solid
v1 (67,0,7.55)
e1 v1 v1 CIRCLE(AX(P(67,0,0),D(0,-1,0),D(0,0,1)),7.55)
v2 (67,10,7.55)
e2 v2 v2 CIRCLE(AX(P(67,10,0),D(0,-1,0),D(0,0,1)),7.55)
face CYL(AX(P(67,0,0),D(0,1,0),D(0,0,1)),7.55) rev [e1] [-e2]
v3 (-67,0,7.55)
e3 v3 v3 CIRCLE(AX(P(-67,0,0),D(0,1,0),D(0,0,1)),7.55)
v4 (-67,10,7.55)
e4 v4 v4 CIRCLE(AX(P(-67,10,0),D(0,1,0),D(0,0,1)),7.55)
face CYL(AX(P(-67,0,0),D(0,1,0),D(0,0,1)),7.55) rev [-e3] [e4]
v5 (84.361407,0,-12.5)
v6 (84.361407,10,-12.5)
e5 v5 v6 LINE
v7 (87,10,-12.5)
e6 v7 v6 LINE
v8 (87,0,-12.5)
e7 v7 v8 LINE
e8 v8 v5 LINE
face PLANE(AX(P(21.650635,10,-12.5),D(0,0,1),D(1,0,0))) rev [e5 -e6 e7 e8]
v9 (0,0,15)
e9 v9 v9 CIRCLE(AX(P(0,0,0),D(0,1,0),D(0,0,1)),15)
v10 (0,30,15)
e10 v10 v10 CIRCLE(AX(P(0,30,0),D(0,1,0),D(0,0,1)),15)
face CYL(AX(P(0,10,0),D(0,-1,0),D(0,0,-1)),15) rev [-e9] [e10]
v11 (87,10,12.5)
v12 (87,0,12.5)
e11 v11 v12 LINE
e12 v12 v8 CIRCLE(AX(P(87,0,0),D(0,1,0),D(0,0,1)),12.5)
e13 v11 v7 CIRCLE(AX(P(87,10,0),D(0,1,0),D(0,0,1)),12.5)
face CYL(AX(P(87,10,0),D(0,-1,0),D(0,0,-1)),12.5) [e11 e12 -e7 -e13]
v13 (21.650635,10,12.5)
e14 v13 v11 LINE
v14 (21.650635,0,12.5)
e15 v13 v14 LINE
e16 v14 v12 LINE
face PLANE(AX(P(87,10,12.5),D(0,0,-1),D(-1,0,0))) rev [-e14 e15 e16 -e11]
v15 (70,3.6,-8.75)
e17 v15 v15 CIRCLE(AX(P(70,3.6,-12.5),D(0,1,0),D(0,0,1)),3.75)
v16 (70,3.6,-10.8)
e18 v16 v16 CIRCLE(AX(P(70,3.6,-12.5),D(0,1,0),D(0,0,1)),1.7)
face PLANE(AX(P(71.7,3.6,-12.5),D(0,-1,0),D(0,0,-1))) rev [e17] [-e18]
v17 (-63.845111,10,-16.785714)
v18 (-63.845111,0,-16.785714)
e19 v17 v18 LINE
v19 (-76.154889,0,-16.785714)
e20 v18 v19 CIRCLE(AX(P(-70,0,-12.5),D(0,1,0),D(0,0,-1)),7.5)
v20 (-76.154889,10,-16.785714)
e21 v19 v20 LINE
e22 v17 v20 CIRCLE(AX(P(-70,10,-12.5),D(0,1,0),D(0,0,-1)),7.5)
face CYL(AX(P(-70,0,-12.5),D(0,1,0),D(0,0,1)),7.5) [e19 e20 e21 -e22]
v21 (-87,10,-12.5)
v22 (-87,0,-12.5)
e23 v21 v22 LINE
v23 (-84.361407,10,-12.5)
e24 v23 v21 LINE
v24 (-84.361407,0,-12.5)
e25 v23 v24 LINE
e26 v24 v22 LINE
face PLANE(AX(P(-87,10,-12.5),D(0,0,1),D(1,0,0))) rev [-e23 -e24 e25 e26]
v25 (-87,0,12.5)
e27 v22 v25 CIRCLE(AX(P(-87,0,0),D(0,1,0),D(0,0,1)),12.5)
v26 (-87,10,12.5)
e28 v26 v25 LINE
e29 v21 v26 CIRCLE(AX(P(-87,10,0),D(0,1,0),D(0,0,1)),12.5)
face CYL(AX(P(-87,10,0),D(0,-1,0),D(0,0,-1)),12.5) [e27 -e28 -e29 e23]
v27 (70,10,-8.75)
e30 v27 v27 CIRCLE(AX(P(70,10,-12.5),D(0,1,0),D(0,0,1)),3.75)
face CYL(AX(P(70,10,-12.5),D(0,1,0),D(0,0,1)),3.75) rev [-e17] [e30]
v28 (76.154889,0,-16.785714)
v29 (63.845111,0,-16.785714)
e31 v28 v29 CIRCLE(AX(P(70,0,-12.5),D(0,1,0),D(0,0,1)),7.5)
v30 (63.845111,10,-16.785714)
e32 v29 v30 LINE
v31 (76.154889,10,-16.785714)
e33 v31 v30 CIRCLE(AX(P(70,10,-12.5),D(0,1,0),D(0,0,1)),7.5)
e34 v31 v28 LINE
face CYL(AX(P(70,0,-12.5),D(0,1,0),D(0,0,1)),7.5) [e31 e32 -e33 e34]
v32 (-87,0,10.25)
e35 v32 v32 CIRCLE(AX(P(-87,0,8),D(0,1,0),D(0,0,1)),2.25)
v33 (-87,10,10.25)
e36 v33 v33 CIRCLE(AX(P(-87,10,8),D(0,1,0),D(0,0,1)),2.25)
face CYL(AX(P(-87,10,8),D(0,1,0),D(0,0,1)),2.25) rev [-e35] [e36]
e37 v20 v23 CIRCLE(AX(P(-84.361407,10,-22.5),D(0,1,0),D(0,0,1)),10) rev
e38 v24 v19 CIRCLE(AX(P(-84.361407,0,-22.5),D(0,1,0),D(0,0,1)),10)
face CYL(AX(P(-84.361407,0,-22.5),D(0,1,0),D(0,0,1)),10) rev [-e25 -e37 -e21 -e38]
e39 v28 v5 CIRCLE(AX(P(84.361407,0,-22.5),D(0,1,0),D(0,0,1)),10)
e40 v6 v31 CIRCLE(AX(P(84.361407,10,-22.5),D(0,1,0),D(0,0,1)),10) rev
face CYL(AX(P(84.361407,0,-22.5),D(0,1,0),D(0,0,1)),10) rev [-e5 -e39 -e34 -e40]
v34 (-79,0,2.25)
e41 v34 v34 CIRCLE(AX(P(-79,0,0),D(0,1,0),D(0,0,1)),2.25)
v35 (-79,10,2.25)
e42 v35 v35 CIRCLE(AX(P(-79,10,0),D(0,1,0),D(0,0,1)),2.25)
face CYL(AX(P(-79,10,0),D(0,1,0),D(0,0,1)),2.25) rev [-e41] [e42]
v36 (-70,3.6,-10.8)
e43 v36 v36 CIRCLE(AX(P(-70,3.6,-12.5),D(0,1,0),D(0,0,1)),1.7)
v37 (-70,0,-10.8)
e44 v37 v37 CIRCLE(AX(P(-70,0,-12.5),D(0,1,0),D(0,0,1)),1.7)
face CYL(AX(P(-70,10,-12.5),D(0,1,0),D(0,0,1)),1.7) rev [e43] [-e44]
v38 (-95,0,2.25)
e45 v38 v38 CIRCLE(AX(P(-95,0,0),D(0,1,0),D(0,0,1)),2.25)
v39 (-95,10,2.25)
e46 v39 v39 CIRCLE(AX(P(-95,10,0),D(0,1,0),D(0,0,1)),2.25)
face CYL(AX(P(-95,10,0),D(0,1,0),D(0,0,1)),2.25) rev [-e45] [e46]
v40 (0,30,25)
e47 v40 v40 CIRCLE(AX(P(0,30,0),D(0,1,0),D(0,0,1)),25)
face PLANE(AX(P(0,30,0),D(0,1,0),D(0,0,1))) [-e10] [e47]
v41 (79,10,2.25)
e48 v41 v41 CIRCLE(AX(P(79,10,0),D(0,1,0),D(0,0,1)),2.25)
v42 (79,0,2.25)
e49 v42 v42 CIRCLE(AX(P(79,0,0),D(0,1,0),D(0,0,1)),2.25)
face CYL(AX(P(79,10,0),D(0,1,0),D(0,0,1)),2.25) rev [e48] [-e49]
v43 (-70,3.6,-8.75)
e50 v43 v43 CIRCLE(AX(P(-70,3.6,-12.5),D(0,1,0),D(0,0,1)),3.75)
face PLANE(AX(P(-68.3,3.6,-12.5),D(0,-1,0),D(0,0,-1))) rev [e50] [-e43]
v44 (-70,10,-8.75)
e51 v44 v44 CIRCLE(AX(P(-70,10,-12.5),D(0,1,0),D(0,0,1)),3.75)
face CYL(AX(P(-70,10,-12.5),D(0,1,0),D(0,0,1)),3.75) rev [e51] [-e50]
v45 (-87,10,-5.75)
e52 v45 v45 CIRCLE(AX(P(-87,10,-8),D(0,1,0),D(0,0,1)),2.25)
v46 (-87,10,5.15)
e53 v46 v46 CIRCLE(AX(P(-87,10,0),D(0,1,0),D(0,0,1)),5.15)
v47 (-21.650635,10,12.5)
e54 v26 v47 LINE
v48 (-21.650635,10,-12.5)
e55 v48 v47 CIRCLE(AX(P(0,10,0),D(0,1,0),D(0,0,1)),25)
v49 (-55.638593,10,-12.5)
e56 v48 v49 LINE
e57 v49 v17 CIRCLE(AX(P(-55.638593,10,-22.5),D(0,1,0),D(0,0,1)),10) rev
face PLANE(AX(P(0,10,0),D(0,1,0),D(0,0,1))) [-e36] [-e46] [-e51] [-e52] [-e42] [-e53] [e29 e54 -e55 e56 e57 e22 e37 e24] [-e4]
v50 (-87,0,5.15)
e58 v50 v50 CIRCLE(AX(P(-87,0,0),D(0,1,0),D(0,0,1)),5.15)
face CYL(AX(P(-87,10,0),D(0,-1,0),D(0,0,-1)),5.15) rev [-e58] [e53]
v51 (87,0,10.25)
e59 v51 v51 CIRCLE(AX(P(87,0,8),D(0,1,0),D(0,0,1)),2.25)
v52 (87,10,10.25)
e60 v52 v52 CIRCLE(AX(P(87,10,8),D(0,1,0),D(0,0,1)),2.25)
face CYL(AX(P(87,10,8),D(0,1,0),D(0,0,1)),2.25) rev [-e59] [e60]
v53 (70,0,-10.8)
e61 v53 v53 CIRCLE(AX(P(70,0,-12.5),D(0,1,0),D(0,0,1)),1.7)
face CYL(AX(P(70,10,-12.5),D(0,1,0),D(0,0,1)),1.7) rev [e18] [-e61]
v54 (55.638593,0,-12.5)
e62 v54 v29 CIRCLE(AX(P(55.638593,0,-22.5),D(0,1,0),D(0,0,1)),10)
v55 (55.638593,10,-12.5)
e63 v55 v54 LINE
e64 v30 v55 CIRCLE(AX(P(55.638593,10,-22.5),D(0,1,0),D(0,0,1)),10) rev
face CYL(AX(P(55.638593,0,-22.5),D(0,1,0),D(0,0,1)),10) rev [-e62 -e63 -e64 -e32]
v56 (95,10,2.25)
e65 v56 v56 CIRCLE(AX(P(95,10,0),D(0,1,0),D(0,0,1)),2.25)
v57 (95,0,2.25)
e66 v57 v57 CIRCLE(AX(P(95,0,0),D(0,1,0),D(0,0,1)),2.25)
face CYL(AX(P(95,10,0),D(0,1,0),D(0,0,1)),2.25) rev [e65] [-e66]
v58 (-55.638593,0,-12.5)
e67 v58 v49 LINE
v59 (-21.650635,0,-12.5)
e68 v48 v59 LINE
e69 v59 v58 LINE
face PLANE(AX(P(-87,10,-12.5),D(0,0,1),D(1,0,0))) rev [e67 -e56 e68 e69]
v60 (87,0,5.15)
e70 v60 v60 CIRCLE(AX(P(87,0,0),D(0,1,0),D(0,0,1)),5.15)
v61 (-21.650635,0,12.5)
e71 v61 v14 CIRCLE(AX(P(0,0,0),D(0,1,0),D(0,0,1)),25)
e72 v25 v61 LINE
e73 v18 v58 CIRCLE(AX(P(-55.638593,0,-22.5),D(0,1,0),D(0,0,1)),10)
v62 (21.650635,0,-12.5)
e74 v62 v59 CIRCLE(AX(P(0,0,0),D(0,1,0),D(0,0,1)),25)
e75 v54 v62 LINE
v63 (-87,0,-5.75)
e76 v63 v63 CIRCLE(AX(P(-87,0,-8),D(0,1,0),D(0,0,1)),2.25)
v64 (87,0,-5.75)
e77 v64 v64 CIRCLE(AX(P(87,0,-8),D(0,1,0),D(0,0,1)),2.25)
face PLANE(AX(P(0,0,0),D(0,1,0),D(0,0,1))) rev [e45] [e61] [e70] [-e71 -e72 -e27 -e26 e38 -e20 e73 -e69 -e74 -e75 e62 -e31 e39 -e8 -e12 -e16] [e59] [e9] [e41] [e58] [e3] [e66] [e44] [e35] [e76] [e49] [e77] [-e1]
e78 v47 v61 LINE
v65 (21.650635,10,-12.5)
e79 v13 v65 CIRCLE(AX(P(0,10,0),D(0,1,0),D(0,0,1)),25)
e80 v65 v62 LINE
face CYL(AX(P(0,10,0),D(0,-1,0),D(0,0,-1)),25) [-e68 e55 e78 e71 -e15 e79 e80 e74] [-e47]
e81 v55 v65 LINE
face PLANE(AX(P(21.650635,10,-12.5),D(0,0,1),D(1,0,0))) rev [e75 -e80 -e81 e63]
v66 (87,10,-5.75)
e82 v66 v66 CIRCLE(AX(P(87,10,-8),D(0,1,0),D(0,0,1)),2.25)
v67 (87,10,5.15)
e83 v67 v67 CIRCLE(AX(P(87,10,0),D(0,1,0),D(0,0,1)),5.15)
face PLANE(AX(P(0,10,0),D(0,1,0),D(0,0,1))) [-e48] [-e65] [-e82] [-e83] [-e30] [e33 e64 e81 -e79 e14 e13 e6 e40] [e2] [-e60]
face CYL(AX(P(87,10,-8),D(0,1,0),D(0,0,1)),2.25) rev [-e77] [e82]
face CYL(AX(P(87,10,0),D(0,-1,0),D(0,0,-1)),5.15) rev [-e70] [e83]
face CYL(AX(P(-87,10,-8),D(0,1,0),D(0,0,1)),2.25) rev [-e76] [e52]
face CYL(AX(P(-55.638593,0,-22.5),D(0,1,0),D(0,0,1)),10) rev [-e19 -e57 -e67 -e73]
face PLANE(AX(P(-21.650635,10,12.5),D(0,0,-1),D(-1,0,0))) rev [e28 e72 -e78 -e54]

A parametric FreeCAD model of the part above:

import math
import FreeCAD as App
import Part
import Sketcher
Q = App.Units.Quantity


def edges_at(feature, points):
    """Names of the edges that pass closest to the given points."""
    edges = feature.Shape.Edges
    near = lambda p: min(range(len(edges)), key=lambda i: edges[i].distToShape(Part.Vertex(*p))[0])
    return sorted({f"Edge{near(p) + 1}" for p in points})

doc = App.newDocument("Part")
body = doc.addObject("PartDesign::Body", "Body")

sketch1 = doc.addObject("Sketcher::SketchObject", "Sketch")
body.addObject(sketch1)
sketch1.AttachmentSupport = (doc.XZ_Plane, [""])
sketch1.MapMode = "FlatFace"
sketch1.addGeometry(Part.LineSegment(App.Vector(22, 12, 0), App.Vector(87, 12, 0)), False)
sketch1.addGeometry(Part.ArcOfCircle(Part.Circle(App.Vector(87, 0, 0), App.Vector(0, 0, 1), 12), math.radians(-90), math.radians(90)), False)
sketch1.addGeometry(Part.LineSegment(App.Vector(87, -12, 0), App.Vector(22, -12, 0)), False)
sketch1.addGeometry(Part.ArcOfCircle(Part.Circle(App.Vector(0, 0, 0), App.Vector(0, 0, 1), 25), math.radians(-150), math.radians(-30)), False)
sketch1.addGeometry(Part.LineSegment(App.Vector(-22, -12, 0), App.Vector(-87, -12, 0)), False)
sketch1.addGeometry(Part.ArcOfCircle(Part.Circle(App.Vector(-87, 0, 0), App.Vector(0, 0, 1), 12), math.radians(90), math.radians(270)), False)
sketch1.addGeometry(Part.LineSegment(App.Vector(-87, 12, 0), App.Vector(-22, 12, 0)), False)
sketch1.addGeometry(Part.ArcOfCircle(Part.Circle(App.Vector(0, 0, 0), App.Vector(0, 0, 1), 25), math.radians(30), math.radians(150)), False)
sketch1.addGeometry(Part.Circle(App.Vector(87, 0, 0), App.Vector(0, 0, 1), 5), False)
sketch1.addGeometry(Part.Circle(App.Vector(0, 0, 0), App.Vector(0, 0, 1), 15), False)
sketch1.addGeometry(Part.Circle(App.Vector(-87, 0, 0), App.Vector(0, 0, 1), 5), False)
sketch1.addConstraint(Sketcher.Constraint("Tangent", 0, 2, 1, 2))
sketch1.addConstraint(Sketcher.Constraint("Tangent", 1, 1, 2, 1))
sketch1.addConstraint(Sketcher.Constraint("Coincident", 2, 2, 3, 2))
sketch1.addConstraint(Sketcher.Constraint("Coincident", 3, 1, 4, 1))
sketch1.addConstraint(Sketcher.Constraint("Tangent", 4, 2, 5, 2))
sketch1.addConstraint(Sketcher.Constraint("Tangent", 5, 1, 6, 1))
sketch1.addConstraint(Sketcher.Constraint("Coincident", 6, 2, 7, 2))
sketch1.addConstraint(Sketcher.Constraint("Coincident", 7, 1, 0, 1))
sketch1.addConstraint(Sketcher.Constraint("Horizontal", 0))
sketch1.addConstraint(Sketcher.Constraint("Horizontal", 2))
sketch1.addConstraint(Sketcher.Constraint("Horizontal", 4))
sketch1.addConstraint(Sketcher.Constraint("Horizontal", 6))
sketch1.addConstraint(Sketcher.Constraint("Coincident", 3, 3, -1, 1))
sketch1.addConstraint(Sketcher.Constraint("Coincident", 7, 3, -1, 1))
sketch1.addConstraint(Sketcher.Constraint("Coincident", 9, 3, -1, 1))
sketch1.addConstraint(Sketcher.Constraint("Coincident", 8, 3, 1, 3))
sketch1.addConstraint(Sketcher.Constraint("Coincident", 10, 3, 5, 3))
sketch1.addConstraint(Sketcher.Constraint("Equal", 1, 5))
sketch1.addConstraint(Sketcher.Constraint("Equal", 3, 7))
sketch1.addConstraint(Sketcher.Constraint("Equal", 8, 10))
sketch1.addConstraint(Sketcher.Constraint("Symmetric", 1, 3, 5, 3, -1, 1))
sketch1.addConstraint(Sketcher.Constraint("PointOnObject", 1, 3, -1))
sketch1.addConstraint(Sketcher.Constraint("Diameter", 9, Q("30 mm")))
sketch1.addConstraint(Sketcher.Constraint("Radius", 3, Q("25 mm")))
sketch1.addConstraint(Sketcher.Constraint("Diameter", 8, Q("10.3 mm")))
sketch1.addConstraint(Sketcher.Constraint("Radius", 1, Q("12.5 mm")))
sketch1.addConstraint(Sketcher.Constraint("DistanceX", -1, 1, 1, 3, Q("87 mm")))
pad1 = doc.addObject("PartDesign::Pad", "Pad")
body.addObject(pad1)
pad1.Profile = sketch1
pad1.Length = 10
pad1.Reversed = True

sketch2 = doc.addObject("Sketcher::SketchObject", "Sketch001")
body.addObject(sketch2)
sketch2.AttachmentSupport = (doc.XZ_Plane, [""])
sketch2.MapMode = "FlatFace"
sketch2.AttachmentOffset = App.Placement(App.Vector(0, 0, -10), App.Rotation())
sketch2.addGeometry(Part.Circle(App.Vector(-87, -8, 0), App.Vector(0, 0, 1), 2.2), False)
sketch2.addConstraint(Sketcher.Constraint("Diameter", 0, Q("4.5 mm")))
sketch2.addConstraint(Sketcher.Constraint("DistanceX", 0, 3, -1, 1, Q("87 mm")))
sketch2.addConstraint(Sketcher.Constraint("DistanceY", 0, 3, -1, 1, Q("8 mm")))
doc.recompute()
hole = doc.addObject("PartDesign::Hole", "Hole")
body.addObject(hole)
hole.Profile = sketch2
hole.ThreadType = "None"
hole.Diameter = 4.5
hole.DepthType = "ThroughAll"
hole.Reversed = True
doc.recompute()

datumline = doc.addObject("PartDesign::Line", "DatumLine")
body.addObject(datumline)
datumline.Placement = App.Placement(App.Vector(-87, 0, 0), App.Rotation(App.Vector(0, 0, 1), App.Vector(0, 1, 0)))
polarpattern = doc.addObject("PartDesign::PolarPattern", "PolarPattern")
body.addObject(polarpattern)
polarpattern.Originals = [hole]
polarpattern.Axis = (datumline, [""])
polarpattern.Angle = 360
polarpattern.Occurrences = 4
body.Tip = polarpattern

sketch3 = doc.addObject("Sketcher::SketchObject", "Sketch002")
body.addObject(sketch3)
sketch3.AttachmentSupport = (doc.XZ_Plane, [""])
sketch3.MapMode = "FlatFace"
sketch3.AttachmentOffset = App.Placement(App.Vector(0, 0, -10), App.Rotation())
sketch3.addGeometry(Part.Circle(App.Vector(-67, 0, 0), App.Vector(0, 0, 1), 8), False)
sketch3.addConstraint(Sketcher.Constraint("PointOnObject", 0, 3, -1))
sketch3.addConstraint(Sketcher.Constraint("Diameter", 0, Q("15.1 mm")))
sketch3.addConstraint(Sketcher.Constraint("DistanceX", 0, 3, -1, 1, Q("67 mm")))
pocket1 = doc.addObject("PartDesign::Pocket", "Pocket")
body.addObject(pocket1)
pocket1.Profile = sketch3
pocket1.Type = "ThroughAll"
pocket1.Reversed = True
doc.recompute()

mirrored = doc.addObject("PartDesign::Mirrored", "Mirrored")
body.addObject(mirrored)
mirrored.Originals = [hole, pocket1]
mirrored.MirrorPlane = (doc.YZ_Plane, [""])
body.Tip = mirrored

sketch4 = doc.addObject("Sketcher::SketchObject", "Sketch003")
body.addObject(sketch4)
sketch4.AttachmentSupport = (doc.XZ_Plane, [""])
sketch4.MapMode = "FlatFace"
sketch4.AttachmentOffset = App.Placement(App.Vector(0, 0, -10), App.Rotation())
sketch4.addGeometry(Part.Circle(App.Vector(95, 0, 0), App.Vector(0, 0, 1), 2.2), False)
sketch4.addConstraint(Sketcher.Constraint("PointOnObject", 0, 3, -1))
sketch4.addConstraint(Sketcher.Constraint("Diameter", 0, Q("4.5 mm")))
sketch4.addConstraint(Sketcher.Constraint("DistanceX", -1, 1, 0, 3, Q("95 mm")))
doc.recompute()
hole2 = doc.addObject("PartDesign::Hole", "Hole001")
body.addObject(hole2)
hole2.Profile = sketch4
hole2.ThreadType = "None"
hole2.Diameter = 4.5
hole2.DepthType = "ThroughAll"
hole2.Reversed = True

sketch5 = doc.addObject("Sketcher::SketchObject", "Sketch004")
body.addObject(sketch5)
sketch5.AttachmentSupport = (doc.XZ_Plane, [""])
sketch5.MapMode = "FlatFace"
sketch5.AttachmentOffset = App.Placement(App.Vector(0, 0, -10), App.Rotation())
sketch5.addGeometry(Part.Circle(App.Vector(87, 8, 0), App.Vector(0, 0, 1), 2.2), False)
sketch5.addConstraint(Sketcher.Constraint("Diameter", 0, Q("4.5 mm")))
sketch5.addConstraint(Sketcher.Constraint("DistanceX", -1, 1, 0, 3, Q("87 mm")))
sketch5.addConstraint(Sketcher.Constraint("DistanceY", -1, 1, 0, 3, Q("8 mm")))
doc.recompute()
hole3 = doc.addObject("PartDesign::Hole", "Hole002")
body.addObject(hole3)
hole3.Profile = sketch5
hole3.ThreadType = "None"
hole3.Diameter = 4.5
hole3.DepthType = "ThroughAll"
hole3.Reversed = True

sketch6 = doc.addObject("Sketcher::SketchObject", "Sketch005")
body.addObject(sketch6)
sketch6.AttachmentSupport = (doc.XZ_Plane, [""])
sketch6.MapMode = "FlatFace"
sketch6.AttachmentOffset = App.Placement(App.Vector(0, 0, -10), App.Rotation())
sketch6.addGeometry(Part.Circle(App.Vector(79, 0, 0), App.Vector(0, 0, 1), 2.2), False)
sketch6.addConstraint(Sketcher.Constraint("PointOnObject", 0, 3, -1))
sketch6.addConstraint(Sketcher.Constraint("Diameter", 0, Q("4.5 mm")))
sketch6.addConstraint(Sketcher.Constraint("DistanceX", -1, 1, 0, 3, Q("79 mm")))
doc.recompute()
hole4 = doc.addObject("PartDesign::Hole", "Hole003")
body.addObject(hole4)
hole4.Profile = sketch6
hole4.ThreadType = "None"
hole4.Diameter = 4.5
hole4.DepthType = "ThroughAll"
hole4.Reversed = True

sketch7 = doc.addObject("Sketcher::SketchObject", "Sketch006")
body.addObject(sketch7)
sketch7.AttachmentSupport = (doc.XZ_Plane, [""])
sketch7.MapMode = "FlatFace"
sketch7.AttachmentOffset = App.Placement(App.Vector(0, 0, -10), App.Rotation())
sketch7.addGeometry(Part.Circle(App.Vector(0, 0, 0), App.Vector(0, 0, 1), 25), False)
sketch7.addGeometry(Part.Circle(App.Vector(0, 0, 0), App.Vector(0, 0, 1), 15), False)
sketch7.addConstraint(Sketcher.Constraint("Coincident", 0, 3, -1, 1))
sketch7.addConstraint(Sketcher.Constraint("Coincident", 1, 3, -1, 1))
sketch7.addConstraint(Sketcher.Constraint("Diameter", 0, Q("50 mm")))
sketch7.addConstraint(Sketcher.Constraint("Diameter", 1, Q("30 mm")))
pad2 = doc.addObject("PartDesign::Pad", "Pad001")
body.addObject(pad2)
pad2.Profile = sketch7
pad2.Length = 20
pad2.Reversed = True

sketch8 = doc.addObject("Sketcher::SketchObject", "Sketch007")
body.addObject(sketch8)
sketch8.AttachmentSupport = (doc.XZ_Plane, [""])
sketch8.MapMode = "FlatFace"
sketch8.AttachmentOffset = App.Placement(App.Vector(0, 0, -10), App.Rotation())
sketch8.addGeometry(Part.LineSegment(App.Vector(62, -12, 0), App.Vector(78, -12, 0)), False)
sketch8.addGeometry(Part.ArcOfCircle(Part.Circle(App.Vector(70, -12, 0), App.Vector(0, 0, 1), 8), math.radians(180), math.radians(360)), False)
sketch8.addGeometry(Part.LineSegment(App.Vector(-78, -12, 0), App.Vector(-62, -12, 0)), False)
sketch8.addGeometry(Part.ArcOfCircle(Part.Circle(App.Vector(-70, -12, 0), App.Vector(0, 0, 1), 8), math.radians(180), math.radians(360)), False)
sketch8.addConstraint(Sketcher.Constraint("Coincident", 0, 1, 1, 1))
sketch8.addConstraint(Sketcher.Constraint("Coincident", 1, 2, 0, 2))
sketch8.addConstraint(Sketcher.Constraint("Coincident", 2, 1, 3, 1))
sketch8.addConstraint(Sketcher.Constraint("Coincident", 3, 2, 2, 2))
sketch8.addConstraint(Sketcher.Constraint("Horizontal", 0))
sketch8.addConstraint(Sketcher.Constraint("Horizontal", 2))
sketch8.addConstraint(Sketcher.Constraint("Equal", 1, 3))
sketch8.addConstraint(Sketcher.Constraint("Symmetric", 1, 3, 3, 3, -2))
sketch8.addConstraint(Sketcher.Constraint("Horizontal", 3, 3, 0, 1))
sketch8.addConstraint(Sketcher.Constraint("Horizontal", 1, 2, 2, 1))
sketch8.addConstraint(Sketcher.Constraint("Radius", 1, Q("7.5 mm")))
sketch8.addConstraint(Sketcher.Constraint("DistanceX", -1, 1, 1, 3, Q("70 mm")))
sketch8.addConstraint(Sketcher.Constraint("DistanceY", 1, 3, -1, 1, Q("12.5 mm")))
pad3 = doc.addObject("PartDesign::Pad", "Pad002")
body.addObject(pad3)
pad3.Profile = sketch8
pad3.Type = "UpToLast"

sketch9 = doc.addObject("Sketcher::SketchObject", "Sketch008")
body.addObject(sketch9)
sketch9.AttachmentSupport = (doc.XZ_Plane, [""])
sketch9.MapMode = "FlatFace"
sketch9.AttachmentOffset = App.Placement(App.Vector(0, 0, -10), App.Rotation())
sketch9.addGeometry(Part.Circle(App.Vector(70, -12.5, 0), App.Vector(0, 0, 1), 1.7), False)
sketch9.addGeometry(Part.Circle(App.Vector(-70, -12.5, 0), App.Vector(0, 0, 1), 1.7), False)
sketch9.addConstraint(Sketcher.Constraint("Equal", 0, 1))
sketch9.addConstraint(Sketcher.Constraint("Symmetric", 0, 3, 1, 3, -2))
sketch9.addConstraint(Sketcher.Constraint("Diameter", 0, Q("3.4 mm")))
sketch9.addConstraint(Sketcher.Constraint("DistanceX", -1, 1, 0, 3, Q("70 mm")))
sketch9.addConstraint(Sketcher.Constraint("DistanceY", 0, 3, -1, 1, Q("12.5 mm")))
doc.recompute()
hole5 = doc.addObject("PartDesign::Hole", "Hole004")
body.addObject(hole5)
hole5.Profile = sketch9
hole5.ThreadType = "None"
hole5.Diameter = 3.4
hole5.DepthType = "ThroughAll"
hole5.HoleCutType = "Counterbore"
hole5.HoleCutDiameter = 7.5
hole5.HoleCutDepth = 6.4
hole5.Reversed = True
doc.recompute()

fillet = doc.addObject("PartDesign::Fillet", "Fillet")
body.addObject(fillet)
fillet.Base = (hole5, edges_at(hole5, [
    (62.5, 5, -12.5),
    (77.5, 5, -12.5),
    (-77.5, 5, -12.5),
    (-62.5, 5, -12.5),
]))
fillet.Radius = 10

doc.recompute()
